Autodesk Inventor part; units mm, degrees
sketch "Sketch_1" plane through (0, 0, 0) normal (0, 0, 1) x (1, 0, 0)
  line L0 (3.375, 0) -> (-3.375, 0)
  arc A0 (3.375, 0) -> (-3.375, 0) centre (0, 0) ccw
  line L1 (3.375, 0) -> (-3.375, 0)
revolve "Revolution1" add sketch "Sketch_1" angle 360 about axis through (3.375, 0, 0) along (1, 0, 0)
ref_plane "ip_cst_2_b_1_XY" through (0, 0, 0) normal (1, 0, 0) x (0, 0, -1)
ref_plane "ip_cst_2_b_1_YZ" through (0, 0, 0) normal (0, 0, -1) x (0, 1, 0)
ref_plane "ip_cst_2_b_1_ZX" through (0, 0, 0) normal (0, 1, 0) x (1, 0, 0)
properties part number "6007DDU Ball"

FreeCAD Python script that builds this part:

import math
import FreeCAD as App
import Part
import Sketcher
from FreeCAD import Vector
Q = App.Units.Quantity

doc = App.newDocument("Part")
params = doc.addObject("Spreadsheet::Sheet", "Params")
for row, (alias, value) in enumerate([
    ("revolution_angle", "360 deg"),
], start=1):
    params.set(f"A{row}", alias)
    params.set(f"B{row}", "=" + value)
    params.setAlias(f"B{row}", alias)

body = doc.addObject("PartDesign::Body", "Body")

# Sketch on XY plane
sketch1 = doc.addObject("Sketcher::SketchObject", "Sketch")
body.addObject(sketch1)
sketch1.AttachmentSupport = (doc.XY_Plane, [""])
sketch1.MapMode = "FlatFace"
sketch1.addGeometry(Part.LineSegment(Vector(-3.4, 0, 0), Vector(3.4, 0, 0)), False)
sketch1.addGeometry(Part.ArcOfCircle(Part.Circle(Vector(0, 0, 0), Vector(0, 0, 1), 3.4), math.radians(0), math.radians(180)), False)
sketch1.addConstraint(Sketcher.Constraint("Coincident", 0, 1, 1, 2))
sketch1.addConstraint(Sketcher.Constraint("Coincident", 1, 1, 0, 2))
sketch1.addConstraint(Sketcher.Constraint("Horizontal", 0))
sketch1.addConstraint(Sketcher.Constraint("Coincident", 1, 3, -1, 1))
sketch1.addConstraint(Sketcher.Constraint("PointOnObject", 0, 1, -1))
sketch1.addConstraint(Sketcher.Constraint("Radius", 1, Q("3.375 mm")))
revolution = doc.addObject("PartDesign::Revolution", "Revolution")
body.addObject(revolution)
revolution.Profile = sketch1
revolution.ReferenceAxis = (sketch1, ["H_Axis"])
revolution.setExpression("Angle", "Params.revolution_angle")

doc.recompute()
